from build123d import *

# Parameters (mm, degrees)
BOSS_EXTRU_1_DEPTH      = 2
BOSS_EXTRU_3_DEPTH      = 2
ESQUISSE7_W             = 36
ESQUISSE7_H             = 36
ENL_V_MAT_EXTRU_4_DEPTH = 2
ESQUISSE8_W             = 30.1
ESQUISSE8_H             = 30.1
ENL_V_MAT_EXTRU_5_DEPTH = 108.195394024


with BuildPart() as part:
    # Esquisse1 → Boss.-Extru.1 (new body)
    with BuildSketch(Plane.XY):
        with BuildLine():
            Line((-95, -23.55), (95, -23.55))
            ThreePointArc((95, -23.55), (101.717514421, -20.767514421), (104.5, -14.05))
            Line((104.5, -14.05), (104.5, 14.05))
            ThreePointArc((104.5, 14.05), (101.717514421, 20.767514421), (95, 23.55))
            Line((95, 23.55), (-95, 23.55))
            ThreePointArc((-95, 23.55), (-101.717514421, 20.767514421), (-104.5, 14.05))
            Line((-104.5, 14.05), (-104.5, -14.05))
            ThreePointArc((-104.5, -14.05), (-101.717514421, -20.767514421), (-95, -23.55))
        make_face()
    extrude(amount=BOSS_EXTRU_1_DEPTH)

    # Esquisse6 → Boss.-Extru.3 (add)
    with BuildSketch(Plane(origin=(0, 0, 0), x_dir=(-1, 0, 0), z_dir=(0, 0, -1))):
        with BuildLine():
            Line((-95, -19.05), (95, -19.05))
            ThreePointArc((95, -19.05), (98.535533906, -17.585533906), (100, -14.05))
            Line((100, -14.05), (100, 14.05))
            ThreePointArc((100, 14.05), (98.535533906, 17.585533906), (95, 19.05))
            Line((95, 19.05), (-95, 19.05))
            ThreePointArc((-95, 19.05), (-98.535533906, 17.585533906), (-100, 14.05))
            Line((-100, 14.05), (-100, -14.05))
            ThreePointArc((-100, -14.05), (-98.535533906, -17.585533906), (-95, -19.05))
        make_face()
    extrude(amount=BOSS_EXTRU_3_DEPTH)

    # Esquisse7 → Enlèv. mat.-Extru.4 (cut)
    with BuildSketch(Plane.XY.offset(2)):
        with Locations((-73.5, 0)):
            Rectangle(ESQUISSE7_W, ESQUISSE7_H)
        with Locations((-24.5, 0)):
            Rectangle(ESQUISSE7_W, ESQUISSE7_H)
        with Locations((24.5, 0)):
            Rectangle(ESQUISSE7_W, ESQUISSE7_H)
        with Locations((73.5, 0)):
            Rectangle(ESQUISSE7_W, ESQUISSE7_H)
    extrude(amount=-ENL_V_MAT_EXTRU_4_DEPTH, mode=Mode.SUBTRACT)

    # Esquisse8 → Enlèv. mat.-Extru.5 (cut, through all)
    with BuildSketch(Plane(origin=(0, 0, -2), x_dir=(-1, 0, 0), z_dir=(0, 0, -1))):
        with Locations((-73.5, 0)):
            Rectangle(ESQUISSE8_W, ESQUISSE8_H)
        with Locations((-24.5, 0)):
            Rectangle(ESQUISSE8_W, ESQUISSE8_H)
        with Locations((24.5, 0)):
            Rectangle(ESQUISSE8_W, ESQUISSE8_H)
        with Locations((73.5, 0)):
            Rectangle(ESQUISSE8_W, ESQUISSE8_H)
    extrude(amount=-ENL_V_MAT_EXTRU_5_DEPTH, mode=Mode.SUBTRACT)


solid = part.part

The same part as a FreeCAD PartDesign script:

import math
import FreeCAD as App
import Part
import Sketcher

V = App.Vector


def add_polygon(sketch, points):
    """Adds a closed chain of lines whose ends are joined by coincident constraints."""
    first, n = sketch.GeometryCount, len(points)
    for a, b in zip(points, points[1:] + points[:1]):
        sketch.addGeometry(Part.LineSegment(App.Vector(*a, 0), App.Vector(*b, 0)), False)
    for i in range(n):
        sketch.addConstraint(Sketcher.Constraint("Coincident", first + i, 2, first + (i + 1) % n, 1))

doc = App.newDocument("Part")
body = doc.addObject("PartDesign::Body", "Body")

sketch1 = body.newObject("Sketcher::SketchObject", "Sketch")
sketch1.AttachmentSupport = (doc.getObject("XY_Plane"), [""])
sketch1.MapMode = "FlatFace"
sketch1.addGeometry([
    Part.LineSegment(V(-95, -24, 0), V(95, -24, 0)),
    Part.ArcOfCircle(Part.Circle(V(95, -14, 0), V(0, 0, 1), 10), math.radians(-90), math.radians(0)),
    Part.LineSegment(V(104, -14, 0), V(104, 14, 0)),
    Part.ArcOfCircle(Part.Circle(V(95, 14, 0), V(0, 0, 1), 10), math.radians(0), math.radians(90)),
    Part.LineSegment(V(95, 24, 0), V(-95, 24, 0)),
    Part.ArcOfCircle(Part.Circle(V(-95, 14, 0), V(0, 0, 1), 10), math.radians(90), math.radians(180)),
    Part.LineSegment(V(-104, 14, 0), V(-104, -14, 0)),
    Part.ArcOfCircle(Part.Circle(V(-95, -14, 0), V(0, 0, 1), 10), math.radians(-180), math.radians(-90)),
], False)
sketch1.addConstraint([
    Sketcher.Constraint("Tangent", 0, 2, 1, 1),
    Sketcher.Constraint("Tangent", 1, 2, 2, 1),
    Sketcher.Constraint("Tangent", 2, 2, 3, 1),
    Sketcher.Constraint("Tangent", 3, 2, 4, 1),
    Sketcher.Constraint("Tangent", 4, 2, 5, 1),
    Sketcher.Constraint("Tangent", 5, 2, 6, 1),
    Sketcher.Constraint("Tangent", 6, 2, 7, 1),
    Sketcher.Constraint("Tangent", 7, 2, 0, 1),
    Sketcher.Constraint("Horizontal", 0),
    Sketcher.Constraint("Vertical", 2),
    Sketcher.Constraint("Horizontal", 4),
    Sketcher.Constraint("Vertical", 6),
    Sketcher.Constraint("Equal", 1, 3),
    Sketcher.Constraint("Equal", 3, 5),
    Sketcher.Constraint("Equal", 5, 7),
    Sketcher.Constraint("Symmetric", 1, 3, 5, 3, -1, 1),
    Sketcher.Constraint("Radius", 1, 9.5),
    Sketcher.Constraint("DistanceX", 0, 1, 0, 2, 190.0),
    Sketcher.Constraint("DistanceY", 2, 1, 2, 2, 28.1),
])
pad1 = body.newObject("PartDesign::Pad", "Pad")
pad1.Profile = sketch1
pad1.Length = 2

sketch2 = body.newObject("Sketcher::SketchObject", "Sketch001")
sketch2.AttachmentSupport = (doc.getObject("XY_Plane"), [""])
sketch2.MapMode = "FlatFace"
sketch2.addGeometry([
    Part.LineSegment(V(95, -19, 0), V(-95, -19, 0)),
    Part.ArcOfCircle(Part.Circle(V(-95, -14, 0), V(0, 0, 1), 5), math.radians(180), math.radians(270)),
    Part.LineSegment(V(-100, -14, 0), V(-100, 14, 0)),
    Part.ArcOfCircle(Part.Circle(V(-95, 14, 0), V(0, 0, 1), 5), math.radians(90), math.radians(180)),
    Part.LineSegment(V(-95, 19, 0), V(95, 19, 0)),
    Part.ArcOfCircle(Part.Circle(V(95, 14, 0), V(0, 0, 1), 5), math.radians(0), math.radians(90)),
    Part.LineSegment(V(100, 14, 0), V(100, -14, 0)),
    Part.ArcOfCircle(Part.Circle(V(95, -14, 0), V(0, 0, 1), 5), math.radians(-90), math.radians(0)),
], False)
sketch2.addConstraint([
    Sketcher.Constraint("Tangent", 0, 2, 1, 2),
    Sketcher.Constraint("Tangent", 1, 1, 2, 1),
    Sketcher.Constraint("Tangent", 2, 2, 3, 2),
    Sketcher.Constraint("Tangent", 3, 1, 4, 1),
    Sketcher.Constraint("Tangent", 4, 2, 5, 2),
    Sketcher.Constraint("Tangent", 5, 1, 6, 1),
    Sketcher.Constraint("Tangent", 6, 2, 7, 2),
    Sketcher.Constraint("Tangent", 7, 1, 0, 1),
    Sketcher.Constraint("Horizontal", 0),
    Sketcher.Constraint("Vertical", 2),
    Sketcher.Constraint("Horizontal", 4),
    Sketcher.Constraint("Vertical", 6),
    Sketcher.Constraint("Equal", 1, 3),
    Sketcher.Constraint("Equal", 3, 5),
    Sketcher.Constraint("Equal", 5, 7),
    Sketcher.Constraint("Symmetric", 1, 3, 5, 3, -1, 1),
    Sketcher.Constraint("Radius", 1, 5.0),
    Sketcher.Constraint("DistanceX", 0, 2, 0, 1, 190.0),
    Sketcher.Constraint("DistanceY", 2, 1, 2, 2, 28.1),
])
pad2 = body.newObject("PartDesign::Pad", "Pad001")
pad2.Profile = sketch2
pad2.Length = 2
pad2.Reversed = True

sketch3 = body.newObject("Sketcher::SketchObject", "Sketch002")
sketch3.AttachmentSupport = (doc.getObject("XY_Plane"), [""])
sketch3.MapMode = "FlatFace"
sketch3.AttachmentOffset = App.Placement(V(0, 0, 2), App.Rotation())
add_polygon(sketch3, [(-92, 18), (-92, -18), (-56, -18), (-56, 18)])
add_polygon(sketch3, [(-42, 18), (-42, -18), (-6, -18), (-6, 18)])
add_polygon(sketch3, [(6, 18), (6, -18), (42, -18), (42, 18)])
add_polygon(sketch3, [(56, 18), (56, -18), (92, -18), (92, 18)])
sketch3.addConstraint([
    Sketcher.Constraint("Vertical", 0),
    Sketcher.Constraint("Horizontal", 1),
    Sketcher.Constraint("Vertical", 2),
    Sketcher.Constraint("Horizontal", 3),
    Sketcher.Constraint("Vertical", 4),
    Sketcher.Constraint("Horizontal", 5),
    Sketcher.Constraint("Vertical", 6),
    Sketcher.Constraint("Horizontal", 7),
    Sketcher.Constraint("Vertical", 8),
    Sketcher.Constraint("Horizontal", 9),
    Sketcher.Constraint("Vertical", 10),
    Sketcher.Constraint("Horizontal", 11),
    Sketcher.Constraint("Vertical", 12),
    Sketcher.Constraint("Horizontal", 13),
    Sketcher.Constraint("Vertical", 14),
    Sketcher.Constraint("Horizontal", 15),
    Sketcher.Constraint("Symmetric", 6, 2, 8, 2, -1, 1),
    Sketcher.Constraint("Symmetric", 4, 2, 10, 2, -1, 1),
    Sketcher.Constraint("Symmetric", 2, 2, 12, 2, -1, 1),
    Sketcher.Constraint("Symmetric", 0, 2, 14, 2, -1, 1),
    Sketcher.Constraint("Horizontal", 1, 2, 4, 2),
    Sketcher.Constraint("Horizontal", 3, 2, 6, 2),
    Sketcher.Constraint("Horizontal", 5, 2, 8, 2),
    Sketcher.Constraint("Equal", 3, 5),
    Sketcher.Constraint("Equal", 15, 0),
    Sketcher.Constraint("DistanceX", 1, 1, 1, 2, 36.0),
    Sketcher.Constraint("DistanceX", 1, 2, 4, 2, 13.0),
    Sketcher.Constraint("DistanceX", 5, 2, 8, 2, 13.0),
])
pocket1 = body.newObject("PartDesign::Pocket", "Pocket")
pocket1.Profile = sketch3
pocket1.Length = 2

sketch4 = body.newObject("Sketcher::SketchObject", "Sketch003")
sketch4.AttachmentSupport = (doc.getObject("XY_Plane"), [""])
sketch4.MapMode = "FlatFace"
sketch4.AttachmentOffset = App.Placement(V(0, 0, -2), App.Rotation())
add_polygon(sketch4, [(89, 15), (89, -15), (58, -15), (58, 15)])
add_polygon(sketch4, [(40, 15), (40, -15), (9, -15), (9, 15)])
add_polygon(sketch4, [(-9, 15), (-9, -15), (-40, -15), (-40, 15)])
add_polygon(sketch4, [(-58, 15), (-58, -15), (-89, -15), (-89, 15)])
sketch4.addConstraint([
    Sketcher.Constraint("Vertical", 0),
    Sketcher.Constraint("Horizontal", 1),
    Sketcher.Constraint("Vertical", 2),
    Sketcher.Constraint("Horizontal", 3),
    Sketcher.Constraint("Vertical", 4),
    Sketcher.Constraint("Horizontal", 5),
    Sketcher.Constraint("Vertical", 6),
    Sketcher.Constraint("Horizontal", 7),
    Sketcher.Constraint("Vertical", 8),
    Sketcher.Constraint("Horizontal", 9),
    Sketcher.Constraint("Vertical", 10),
    Sketcher.Constraint("Horizontal", 11),
    Sketcher.Constraint("Vertical", 12),
    Sketcher.Constraint("Horizontal", 13),
    Sketcher.Constraint("Vertical", 14),
    Sketcher.Constraint("Horizontal", 15),
    Sketcher.Constraint("Symmetric", 6, 2, 8, 2, -1, 1),
    Sketcher.Constraint("Symmetric", 4, 2, 10, 2, -1, 1),
    Sketcher.Constraint("Symmetric", 2, 2, 12, 2, -1, 1),
    Sketcher.Constraint("Symmetric", 0, 2, 14, 2, -1, 1),
    Sketcher.Constraint("Horizontal", 1, 2, 4, 2),
    Sketcher.Constraint("Horizontal", 3, 2, 6, 2),
    Sketcher.Constraint("Horizontal", 5, 2, 8, 2),
    Sketcher.Constraint("Equal", 3, 5),
    Sketcher.Constraint("Equal", 15, 0),
    Sketcher.Constraint("DistanceX", 1, 2, 1, 1, 30.1),
    Sketcher.Constraint("DistanceX", 4, 2, 0, 2, 49.0),
    Sketcher.Constraint("DistanceX", 8, 2, 4, 2, 49.0),
])
pocket2 = body.newObject("PartDesign::Pocket", "Pocket001")
pocket2.Profile = sketch4
pocket2.Type = "ThroughAll"
pocket2.Reversed = True

doc.recompute()
